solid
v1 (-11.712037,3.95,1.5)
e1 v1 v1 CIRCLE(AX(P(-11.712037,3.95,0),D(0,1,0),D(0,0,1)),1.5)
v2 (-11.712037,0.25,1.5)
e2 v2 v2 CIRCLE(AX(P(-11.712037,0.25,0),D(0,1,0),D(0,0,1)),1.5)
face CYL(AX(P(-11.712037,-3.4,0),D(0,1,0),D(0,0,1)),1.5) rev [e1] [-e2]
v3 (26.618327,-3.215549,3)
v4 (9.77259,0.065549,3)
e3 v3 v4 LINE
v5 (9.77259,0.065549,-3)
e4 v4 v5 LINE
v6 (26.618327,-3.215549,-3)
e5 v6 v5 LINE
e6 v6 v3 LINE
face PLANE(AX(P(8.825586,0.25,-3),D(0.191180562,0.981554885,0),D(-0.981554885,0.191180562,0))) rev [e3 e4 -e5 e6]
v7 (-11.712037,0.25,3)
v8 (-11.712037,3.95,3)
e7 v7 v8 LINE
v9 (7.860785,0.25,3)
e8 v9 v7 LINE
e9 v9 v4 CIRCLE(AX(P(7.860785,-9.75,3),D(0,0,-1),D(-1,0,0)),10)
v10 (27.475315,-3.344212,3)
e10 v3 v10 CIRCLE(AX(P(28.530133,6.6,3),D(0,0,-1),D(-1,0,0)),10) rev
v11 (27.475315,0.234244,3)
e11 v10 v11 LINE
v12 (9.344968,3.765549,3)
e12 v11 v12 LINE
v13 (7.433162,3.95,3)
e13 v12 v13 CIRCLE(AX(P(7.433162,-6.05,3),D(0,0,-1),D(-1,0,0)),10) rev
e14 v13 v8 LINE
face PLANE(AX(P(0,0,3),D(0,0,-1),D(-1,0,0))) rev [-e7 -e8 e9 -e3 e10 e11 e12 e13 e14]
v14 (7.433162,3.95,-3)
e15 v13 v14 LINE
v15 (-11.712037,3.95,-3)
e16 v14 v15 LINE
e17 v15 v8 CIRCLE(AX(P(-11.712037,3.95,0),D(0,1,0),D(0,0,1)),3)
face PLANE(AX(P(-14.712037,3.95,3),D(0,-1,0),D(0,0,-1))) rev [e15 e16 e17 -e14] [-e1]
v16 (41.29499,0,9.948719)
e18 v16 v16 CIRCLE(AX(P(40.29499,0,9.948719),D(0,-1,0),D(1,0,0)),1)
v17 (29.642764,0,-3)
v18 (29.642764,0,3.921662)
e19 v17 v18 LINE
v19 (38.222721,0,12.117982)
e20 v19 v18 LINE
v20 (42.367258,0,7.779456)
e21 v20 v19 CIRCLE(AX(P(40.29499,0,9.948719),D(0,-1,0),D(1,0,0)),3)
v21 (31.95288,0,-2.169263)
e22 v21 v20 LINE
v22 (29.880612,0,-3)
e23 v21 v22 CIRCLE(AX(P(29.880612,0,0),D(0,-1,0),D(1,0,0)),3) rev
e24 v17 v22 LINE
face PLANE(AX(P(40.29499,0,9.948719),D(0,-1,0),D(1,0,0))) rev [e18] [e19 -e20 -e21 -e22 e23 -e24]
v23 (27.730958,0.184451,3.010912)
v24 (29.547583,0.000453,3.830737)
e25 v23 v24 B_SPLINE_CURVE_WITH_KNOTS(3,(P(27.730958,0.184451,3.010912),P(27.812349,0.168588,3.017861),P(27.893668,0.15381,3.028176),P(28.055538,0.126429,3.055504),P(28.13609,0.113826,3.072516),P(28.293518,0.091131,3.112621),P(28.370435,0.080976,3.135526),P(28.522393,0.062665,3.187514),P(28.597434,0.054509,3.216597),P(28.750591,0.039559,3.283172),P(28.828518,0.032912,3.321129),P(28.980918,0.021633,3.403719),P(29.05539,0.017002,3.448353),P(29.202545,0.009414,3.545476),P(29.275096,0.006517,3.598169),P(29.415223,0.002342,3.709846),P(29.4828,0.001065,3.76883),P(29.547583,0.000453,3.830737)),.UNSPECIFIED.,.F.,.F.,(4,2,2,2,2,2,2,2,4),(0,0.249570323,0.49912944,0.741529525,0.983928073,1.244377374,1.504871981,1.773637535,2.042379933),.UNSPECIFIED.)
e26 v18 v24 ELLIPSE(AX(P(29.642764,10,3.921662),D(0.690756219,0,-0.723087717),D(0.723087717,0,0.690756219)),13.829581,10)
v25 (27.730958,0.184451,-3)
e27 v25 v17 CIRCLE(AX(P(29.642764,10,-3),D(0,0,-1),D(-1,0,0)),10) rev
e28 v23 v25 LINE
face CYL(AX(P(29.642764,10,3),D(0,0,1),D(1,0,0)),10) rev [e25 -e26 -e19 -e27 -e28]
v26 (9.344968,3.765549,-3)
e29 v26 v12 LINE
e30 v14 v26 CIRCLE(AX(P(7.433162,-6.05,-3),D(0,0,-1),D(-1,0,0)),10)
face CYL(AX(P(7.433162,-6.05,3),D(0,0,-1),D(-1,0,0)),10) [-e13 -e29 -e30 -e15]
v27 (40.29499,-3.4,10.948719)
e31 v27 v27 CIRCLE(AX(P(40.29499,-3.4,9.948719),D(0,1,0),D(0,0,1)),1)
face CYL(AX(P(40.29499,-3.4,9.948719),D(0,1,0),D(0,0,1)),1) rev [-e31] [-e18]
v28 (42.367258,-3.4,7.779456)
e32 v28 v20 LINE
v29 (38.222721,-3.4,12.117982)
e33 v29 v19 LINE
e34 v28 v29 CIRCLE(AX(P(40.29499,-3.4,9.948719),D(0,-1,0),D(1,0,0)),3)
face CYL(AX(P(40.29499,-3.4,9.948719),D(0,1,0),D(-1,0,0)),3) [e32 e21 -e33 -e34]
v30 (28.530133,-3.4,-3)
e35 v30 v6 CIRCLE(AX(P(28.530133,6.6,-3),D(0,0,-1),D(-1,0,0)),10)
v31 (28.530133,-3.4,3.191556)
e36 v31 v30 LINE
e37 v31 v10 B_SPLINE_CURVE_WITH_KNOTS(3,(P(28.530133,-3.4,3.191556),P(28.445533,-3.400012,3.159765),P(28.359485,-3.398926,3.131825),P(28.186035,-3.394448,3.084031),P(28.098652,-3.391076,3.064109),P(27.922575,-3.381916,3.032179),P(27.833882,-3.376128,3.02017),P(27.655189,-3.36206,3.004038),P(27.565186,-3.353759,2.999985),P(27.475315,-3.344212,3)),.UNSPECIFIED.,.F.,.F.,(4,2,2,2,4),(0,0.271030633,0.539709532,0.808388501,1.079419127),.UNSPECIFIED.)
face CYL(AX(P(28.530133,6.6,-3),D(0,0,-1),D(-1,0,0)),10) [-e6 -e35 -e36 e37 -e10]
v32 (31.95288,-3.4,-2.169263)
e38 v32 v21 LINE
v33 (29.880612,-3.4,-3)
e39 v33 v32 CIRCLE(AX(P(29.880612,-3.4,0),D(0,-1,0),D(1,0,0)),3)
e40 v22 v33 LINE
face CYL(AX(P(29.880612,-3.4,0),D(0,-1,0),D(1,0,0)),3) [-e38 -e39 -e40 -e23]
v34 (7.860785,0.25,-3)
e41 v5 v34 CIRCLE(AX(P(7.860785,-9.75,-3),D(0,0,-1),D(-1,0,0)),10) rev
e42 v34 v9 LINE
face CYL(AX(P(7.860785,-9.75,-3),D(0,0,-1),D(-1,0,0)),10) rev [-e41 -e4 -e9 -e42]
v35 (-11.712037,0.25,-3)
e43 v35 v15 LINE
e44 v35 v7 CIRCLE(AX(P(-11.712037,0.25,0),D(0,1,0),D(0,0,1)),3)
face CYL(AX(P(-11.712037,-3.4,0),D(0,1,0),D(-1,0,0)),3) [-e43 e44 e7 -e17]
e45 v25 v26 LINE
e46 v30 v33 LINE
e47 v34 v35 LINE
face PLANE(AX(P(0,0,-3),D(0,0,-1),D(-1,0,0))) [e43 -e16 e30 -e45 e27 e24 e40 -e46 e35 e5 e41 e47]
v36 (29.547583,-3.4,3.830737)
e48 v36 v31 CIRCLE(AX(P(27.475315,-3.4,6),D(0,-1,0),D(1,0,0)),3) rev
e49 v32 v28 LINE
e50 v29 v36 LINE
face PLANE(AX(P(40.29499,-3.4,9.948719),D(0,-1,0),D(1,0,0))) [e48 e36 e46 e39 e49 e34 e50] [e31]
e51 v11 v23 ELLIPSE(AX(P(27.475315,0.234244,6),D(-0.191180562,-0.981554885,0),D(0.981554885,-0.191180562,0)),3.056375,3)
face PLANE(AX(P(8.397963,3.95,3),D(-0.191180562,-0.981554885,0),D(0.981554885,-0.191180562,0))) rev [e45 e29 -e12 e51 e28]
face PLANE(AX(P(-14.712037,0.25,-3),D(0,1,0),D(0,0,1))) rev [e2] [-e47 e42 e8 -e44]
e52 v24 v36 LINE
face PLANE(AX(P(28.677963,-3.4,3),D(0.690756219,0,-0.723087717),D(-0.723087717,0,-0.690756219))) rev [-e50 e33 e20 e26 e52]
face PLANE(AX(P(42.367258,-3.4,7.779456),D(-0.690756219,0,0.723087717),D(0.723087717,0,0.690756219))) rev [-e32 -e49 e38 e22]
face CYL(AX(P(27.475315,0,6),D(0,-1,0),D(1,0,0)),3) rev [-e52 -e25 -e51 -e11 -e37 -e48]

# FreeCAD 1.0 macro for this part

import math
import FreeCAD as App
import Part
import Sketcher
from FreeCAD import Vector
Q = App.Units.Quantity


def edges_at(feature, points):
    """Names of the edges that pass closest to the given points."""
    edges = feature.Shape.Edges
    near = lambda p: min(range(len(edges)), key=lambda i: edges[i].distToShape(Part.Vertex(*p))[0])
    return sorted({f"Edge{near(p) + 1}" for p in points})


def add_polygon(sketch, points):
    """Adds a closed chain of lines whose ends are joined by coincident constraints."""
    first, n = sketch.GeometryCount, len(points)
    for a, b in zip(points, points[1:] + points[:1]):
        sketch.addGeometry(Part.LineSegment(App.Vector(*a, 0), App.Vector(*b, 0)), False)
    for i in range(n):
        sketch.addConstraint(Sketcher.Constraint("Coincident", first + i, 2, first + (i + 1) % n, 1))

doc = App.newDocument("Part")
body = doc.addObject("PartDesign::Body", "Body")

# Sketch on XY plane
sketch1 = body.newObject("Sketcher::SketchObject", "Sketch")
sketch1.AttachmentSupport = (doc.getObject("XY_Plane"), [""])
sketch1.MapMode = "FlatFace"
add_polygon(sketch1, [(8.397963, 3.95), (-14.712037, 3.95), (-14.712037, 0), (28.677963, 0)])  # lines 0-3
sketch1.addConstraint([
    Sketcher.Constraint("Horizontal", 0),
    Sketcher.Constraint("Vertical", 1),
    Sketcher.Constraint("Horizontal", 2),
    Sketcher.Constraint("PointOnObject", 1, 2, -1),
    Sketcher.Constraint("DistanceX", 0, 2, 0, 1, 23.11),
    Sketcher.Constraint("DistanceX", 2, 1, 2, 2, 43.39),
    Sketcher.Constraint("DistanceY", 1, 2, 1, 1, 3.95),
    Sketcher.Constraint("DistanceX", 0, 2, -1, 1, 14.712037),
])
pad1 = body.newObject("PartDesign::Pad", "Pad")
pad1.Profile = sketch1
pad1.Length = 6
pad1.Midplane = True

# Sketch on XZ plane
sketch2 = body.newObject("Sketcher::SketchObject", "Sketch001")
sketch2.AttachmentSupport = (doc.getObject("XZ_Plane"), [""])
sketch2.MapMode = "FlatFace"
sketch2.addGeometry([
    Part.LineSegment(Vector(-11.712037, -3, 0), Vector(31.08326, -3, 0)),  # 0
    Part.LineSegment(Vector(31.08326, -3, 0), Vector(42.367258, 7.779456, 0)),  # 1
    Part.ArcOfCircle(Part.Circle(Vector(40.29499, 9.948719, 0), Vector(0, 0, 1), 3), math.radians(-46.31), math.radians(133.69)),  # 2
    Part.LineSegment(Vector(38.222721, 12.117982, 0), Vector(28.677963, 3, 0)),  # 3
    Part.LineSegment(Vector(28.677963, 3, 0), Vector(-11.712037, 3, 0)),  # 4
    Part.ArcOfCircle(Part.Circle(Vector(-11.712037, 0, 0), Vector(0, 0, 1), 3), math.radians(90), math.radians(270)),  # 5
], False)
sketch2.addConstraint([
    Sketcher.Constraint("Coincident", 0, 2, 1, 1),
    Sketcher.Constraint("Tangent", 1, 2, 2, 1),
    Sketcher.Constraint("Tangent", 2, 2, 3, 1),
    Sketcher.Constraint("Coincident", 3, 2, 4, 1),
    Sketcher.Constraint("Tangent", 4, 2, 5, 1),
    Sketcher.Constraint("Tangent", 5, 2, 0, 1),
    Sketcher.Constraint("Horizontal", 0),
    Sketcher.Constraint("Horizontal", 4),
    Sketcher.Constraint("Equal", 2, 5),
    Sketcher.Constraint("PointOnObject", 5, 3, -1),
    Sketcher.Constraint("Parallel", 1, 3),
    Sketcher.Constraint("Radius", 2, 3.0),
    Sketcher.Constraint("Distance", 3, 13.2),
    Sketcher.Constraint("DistanceX", 4, 2, 4, 1, 40.39),
    Sketcher.Constraint("Angle", 1, Q("43.69 deg")),
    Sketcher.Constraint("DistanceX", -1, 1, 2, 3, 40.29499),
])
pad2 = body.newObject("PartDesign::Pad", "Pad001")
pad2.Profile = sketch2
pad2.Length = 3.4

# Sketch on XZ plane
sketch3 = body.newObject("Sketcher::SketchObject", "Sketch002")
sketch3.AttachmentSupport = (doc.getObject("XZ_Plane"), [""])
sketch3.MapMode = "FlatFace"
sketch3.AttachmentOffset = App.Placement(Vector(0, 0, -3.95), App.Rotation())
sketch3.addGeometry([
    Part.ArcOfCircle(Part.Circle(Vector(-11.712037, 0, 0), Vector(0, 0, 1), 3), math.radians(180), math.radians(270)),  # 0
    Part.LineSegment(Vector(-11.712037, -3, 0), Vector(-14.712037, -3, 0)),  # 1
    Part.LineSegment(Vector(-14.712037, -3, 0), Vector(-14.712037, 0, 0)),  # 2
    Part.ArcOfCircle(Part.Circle(Vector(-11.712037, 0, 0), Vector(0, 0, 1), 3), math.radians(90), math.radians(180)),  # 3
    Part.LineSegment(Vector(-14.712037, 0, 0), Vector(-14.712037, 3, 0)),  # 4
    Part.LineSegment(Vector(-14.712037, 3, 0), Vector(-11.712037, 3, 0)),  # 5
], False)
sketch3.addConstraint([
    Sketcher.Constraint("Tangent", 0, 2, 1, 1),
    Sketcher.Constraint("Coincident", 1, 2, 2, 1),
    Sketcher.Constraint("Tangent", 2, 2, 0, 1),
    Sketcher.Constraint("Tangent", 3, 2, 4, 1),
    Sketcher.Constraint("Coincident", 4, 2, 5, 1),
    Sketcher.Constraint("Tangent", 5, 2, 3, 1),
    Sketcher.Constraint("Horizontal", 1),
    Sketcher.Constraint("Vertical", 2),
    Sketcher.Constraint("Vertical", 4),
    Sketcher.Constraint("Horizontal", 5),
    Sketcher.Constraint("Coincident", 3, 3, 0, 3),
    Sketcher.Constraint("Equal", 0, 3),
    Sketcher.Constraint("PointOnObject", 0, 3, -1),
    Sketcher.Constraint("Radius", 0, 3.0),
    Sketcher.Constraint("DistanceX", 0, 3, -1, 1, 11.712037),
])
pocket1 = body.newObject("PartDesign::Pocket", "Pocket")
pocket1.Profile = sketch3
pocket1.Type = "ThroughAll"
pocket1.Midplane = True

# Sketch on XY plane
sketch4 = body.newObject("Sketcher::SketchObject", "Sketch003")
sketch4.AttachmentSupport = (doc.getObject("XY_Plane"), [""])
sketch4.MapMode = "FlatFace"
sketch4.AttachmentOffset = App.Placement(Vector(0, 0, 3), App.Rotation())
add_polygon(sketch4, [(8.825586, 0.25), (-14.712037, 0.25), (-14.712037, -3.4), (27.565332, -3.4)])  # lines 0-3
sketch4.addConstraint([
    Sketcher.Constraint("Horizontal", 0),
    Sketcher.Constraint("Vertical", 1),
    Sketcher.Constraint("Horizontal", 2),
    Sketcher.Constraint("DistanceY", 1, 2, 1, 1, 3.65),
    Sketcher.Constraint("DistanceY", 1, 2, -1, 1, 3.4),
    Sketcher.Constraint("Distance", 3, 19.091899),
    Sketcher.Constraint("DistanceX", 2, 1, 2, 2, 42.277369),
    Sketcher.Constraint("DistanceX", 0, 2, -1, 1, 14.712037),
])
pocket2 = body.newObject("PartDesign::Pocket", "Pocket001")
pocket2.Profile = sketch4
pocket2.Type = "ThroughAll"
pocket2.Midplane = True

# Sketch on XZ plane
sketch5 = body.newObject("Sketcher::SketchObject", "Sketch004")
sketch5.AttachmentSupport = (doc.getObject("XZ_Plane"), [""])
sketch5.MapMode = "FlatFace"
sketch5.AttachmentOffset = App.Placement(Vector(0, 0, -3.95), App.Rotation())
sketch5.addGeometry([
    Part.Circle(Vector(-11.712037, 0, 0), Vector(0, 0, 1), 1.5),
    Part.Circle(Vector(40.29499, 9.948719, 0), Vector(0, 0, 1), 1),
], False)
sketch5.addConstraint([
    Sketcher.Constraint("PointOnObject", 0, 3, -1),
    Sketcher.Constraint("Diameter", 0, 3.0),
    Sketcher.Constraint("Diameter", 1, 2.0),
    Sketcher.Constraint("DistanceX", -1, 1, 1, 3, 40.29499),
    Sketcher.Constraint("DistanceY", -1, 1, 1, 3, 9.948719),
    Sketcher.Constraint("DistanceX", 0, 3, -1, 1, 11.712037),
])
pocket3 = body.newObject("PartDesign::Pocket", "Pocket002")
pocket3.Profile = sketch5
pocket3.Type = "ThroughAll"
pocket3.Midplane = True
doc.recompute()

fillet = body.newObject("PartDesign::Fillet", "Fillet")
fillet.Base = (pocket3, edges_at(pocket3, [
    (8.398, 3.95, 0),
    (28.678, 0, 0),
    (27.565, -3.4, 0),
    (8.826, 0.25, 0),
]))
fillet.Radius = 10
doc.recompute()

fillet2 = body.newObject("PartDesign::Fillet", "Fillet001")
fillet2.Base = (fillet, edges_at(fillet, [(31.083, -1.7, -3), (28.678, -1.677, 3)]))
fillet2.Radius = 3

doc.recompute()
